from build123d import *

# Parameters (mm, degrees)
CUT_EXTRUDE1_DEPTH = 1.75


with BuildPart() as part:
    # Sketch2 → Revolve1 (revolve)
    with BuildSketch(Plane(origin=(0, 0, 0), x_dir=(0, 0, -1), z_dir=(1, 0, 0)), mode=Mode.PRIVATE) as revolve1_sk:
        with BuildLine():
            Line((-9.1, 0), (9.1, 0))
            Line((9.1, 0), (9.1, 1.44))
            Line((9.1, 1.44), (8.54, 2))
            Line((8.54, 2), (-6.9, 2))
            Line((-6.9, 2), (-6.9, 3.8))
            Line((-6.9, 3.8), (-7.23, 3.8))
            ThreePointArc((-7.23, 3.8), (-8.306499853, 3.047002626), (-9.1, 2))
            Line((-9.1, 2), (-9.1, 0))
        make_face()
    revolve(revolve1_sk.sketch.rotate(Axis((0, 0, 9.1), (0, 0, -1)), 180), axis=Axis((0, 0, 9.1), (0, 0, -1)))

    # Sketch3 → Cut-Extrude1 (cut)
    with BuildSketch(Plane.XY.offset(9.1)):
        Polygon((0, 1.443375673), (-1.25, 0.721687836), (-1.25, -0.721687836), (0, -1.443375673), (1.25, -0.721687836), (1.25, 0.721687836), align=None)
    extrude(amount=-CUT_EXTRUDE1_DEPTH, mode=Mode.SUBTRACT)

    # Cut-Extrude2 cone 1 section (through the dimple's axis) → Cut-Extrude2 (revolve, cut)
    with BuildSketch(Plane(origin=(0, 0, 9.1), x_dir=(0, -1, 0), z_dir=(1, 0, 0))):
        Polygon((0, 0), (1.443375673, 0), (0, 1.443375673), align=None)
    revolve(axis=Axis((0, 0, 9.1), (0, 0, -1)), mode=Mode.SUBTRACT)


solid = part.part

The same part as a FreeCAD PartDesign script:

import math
import FreeCAD as App
import Part
import Sketcher
Q = App.Units.Quantity


def add_polygon(sketch, points):
    """Adds a closed chain of lines whose ends are joined by coincident constraints."""
    first, n = sketch.GeometryCount, len(points)
    for a, b in zip(points, points[1:] + points[:1]):
        sketch.addGeometry(Part.LineSegment(App.Vector(*a, 0), App.Vector(*b, 0)), False)
    for i in range(n):
        sketch.addConstraint(Sketcher.Constraint("Coincident", first + i, 2, first + (i + 1) % n, 1))

doc = App.newDocument("Part")
body = doc.addObject("PartDesign::Body", "Body")

# Sketch on YZ plane
sketch1 = body.newObject("Sketcher::SketchObject", "Sketch")
sketch1.AttachmentSupport = (doc.getObject("YZ_Plane"), [""])
sketch1.MapMode = "FlatFace"
sketch1.addGeometry(Part.LineSegment(App.Vector(0, 9.1, 0), App.Vector(0, -9.1, 0)), False)
sketch1.addGeometry(Part.LineSegment(App.Vector(0, -9.1, 0), App.Vector(1.44, -9.1, 0)), False)
sketch1.addGeometry(Part.LineSegment(App.Vector(1.44, -9.1, 0), App.Vector(2, -8.54, 0)), False)
sketch1.addGeometry(Part.LineSegment(App.Vector(2, -8.54, 0), App.Vector(2, 6.9, 0)), False)
sketch1.addGeometry(Part.LineSegment(App.Vector(2, 6.9, 0), App.Vector(3.8, 6.9, 0)), False)
sketch1.addGeometry(Part.LineSegment(App.Vector(3.8, 6.9, 0), App.Vector(3.8, 7.23, 0)), False)
sketch1.addGeometry(Part.ArcOfCircle(Part.Circle(App.Vector(0, 5.37, 0), App.Vector(0, 0, 1), 4.23), math.radians(26), math.radians(62)), False)
sketch1.addGeometry(Part.LineSegment(App.Vector(2, 9.1, 0), App.Vector(0, 9.1, 0)), False)
sketch1.addConstraint(Sketcher.Constraint("Coincident", 0, 2, 1, 1))
sketch1.addConstraint(Sketcher.Constraint("Coincident", 1, 2, 2, 1))
sketch1.addConstraint(Sketcher.Constraint("Coincident", 2, 2, 3, 1))
sketch1.addConstraint(Sketcher.Constraint("Coincident", 3, 2, 4, 1))
sketch1.addConstraint(Sketcher.Constraint("Coincident", 4, 2, 5, 1))
sketch1.addConstraint(Sketcher.Constraint("Coincident", 5, 2, 6, 1))
sketch1.addConstraint(Sketcher.Constraint("Coincident", 6, 2, 7, 1))
sketch1.addConstraint(Sketcher.Constraint("Coincident", 7, 2, 0, 1))
sketch1.addConstraint(Sketcher.Constraint("Vertical", 0))
sketch1.addConstraint(Sketcher.Constraint("Horizontal", 1))
sketch1.addConstraint(Sketcher.Constraint("Vertical", 3))
sketch1.addConstraint(Sketcher.Constraint("Horizontal", 4))
sketch1.addConstraint(Sketcher.Constraint("Vertical", 5))
sketch1.addConstraint(Sketcher.Constraint("Horizontal", 7))
sketch1.addConstraint(Sketcher.Constraint("Symmetric", 0, 2, 7, 2, -1, 1))
sketch1.addConstraint(Sketcher.Constraint("PointOnObject", 6, 3, -2))
sketch1.addConstraint(Sketcher.Constraint("Vertical", 3, 2, 6, 2))
sketch1.addConstraint(Sketcher.Constraint("DistanceX", 7, 2, 7, 1, Q("2 mm")))
sketch1.addConstraint(Sketcher.Constraint("Angle", 2, Q("45 deg")))
sketch1.addConstraint(Sketcher.Constraint("DistanceX", 4, 1, 4, 2, Q("1.8 mm")))
sketch1.addConstraint(Sketcher.Constraint("DistanceY", 0, 2, 0, 1, Q("18.2 mm")))
sketch1.addConstraint(Sketcher.Constraint("DistanceY", 1, 2, 3, 2, Q("16 mm")))
sketch1.addConstraint(Sketcher.Constraint("DistanceX", 1, 1, 1, 2, Q("1.44 mm")))
sketch1.addConstraint(Sketcher.Constraint("DistanceY", 5, 1, 5, 2, Q("0.33 mm")))
revolution = body.newObject("PartDesign::Revolution", "Revolution")
revolution.Profile = sketch1
revolution.ReferenceAxis = (sketch1, ["V_Axis"])
revolution.Angle = 360

# Sketch on XY plane
sketch2 = body.newObject("Sketcher::SketchObject", "Sketch001")
sketch2.AttachmentSupport = (doc.getObject("XY_Plane"), [""])
sketch2.MapMode = "FlatFace"
sketch2.AttachmentOffset = App.Placement(App.Vector(0, 0, 9.1), App.Rotation())
add_polygon(sketch2, [(0, 1.4), (-1.2, 0.7), (-1.2, -0.7), (0, -1.4), (1.2, -0.7), (1.2, 0.7)])  # lines 0-5
sketch2.addConstraint(Sketcher.Constraint("Vertical", 1))
sketch2.addConstraint(Sketcher.Constraint("Vertical", 4))
sketch2.addConstraint(Sketcher.Constraint("Symmetric", 0, 2, 3, 2, -1, 1))
sketch2.addConstraint(Sketcher.Constraint("Symmetric", 2, 2, 5, 2, -1, 1))
sketch2.addConstraint(Sketcher.Constraint("PointOnObject", 2, 2, -2))
sketch2.addConstraint(Sketcher.Constraint("Parallel", 2, 5))
sketch2.addConstraint(Sketcher.Constraint("Horizontal", 1, 2, 3, 2))
sketch2.addConstraint(Sketcher.Constraint("Angle", 0, Q("-150 deg")))
sketch2.addConstraint(Sketcher.Constraint("DistanceX", 1, 2, 3, 2, Q("2.5 mm")))
sketch2.addConstraint(Sketcher.Constraint("DistanceY", 1, 2, 1, 1, Q("1.443376 mm")))
pocket1 = body.newObject("PartDesign::Pocket", "Pocket")
pocket1.Profile = sketch2
pocket1.Length = 1.75

# Sketch on YZ plane
sketch3 = body.newObject("Sketcher::SketchObject", "Sketch002")
sketch3.AttachmentSupport = (doc.getObject("YZ_Plane"), [""])
sketch3.MapMode = "FlatFace"
add_polygon(sketch3, [(0, 9.1), (-1.4, 9.1), (0, 7.7)])  # lines 0-2
sketch3.addConstraint(Sketcher.Constraint("Horizontal", 0))
sketch3.addConstraint(Sketcher.Constraint("Vertical", 2))
sketch3.addConstraint(Sketcher.Constraint("PointOnObject", 1, 2, -2))
sketch3.addConstraint(Sketcher.Constraint("Equal", 0, 2))
sketch3.addConstraint(Sketcher.Constraint("DistanceY", -1, 1, 0, 2, Q("9.1 mm")))
sketch3.addConstraint(Sketcher.Constraint("Distance", 1, Q("2.041241 mm")))
groove = body.newObject("PartDesign::Groove", "Groove")
groove.Profile = sketch3
groove.ReferenceAxis = (sketch3, ["V_Axis"])
groove.Angle = 360

doc.recompute()
